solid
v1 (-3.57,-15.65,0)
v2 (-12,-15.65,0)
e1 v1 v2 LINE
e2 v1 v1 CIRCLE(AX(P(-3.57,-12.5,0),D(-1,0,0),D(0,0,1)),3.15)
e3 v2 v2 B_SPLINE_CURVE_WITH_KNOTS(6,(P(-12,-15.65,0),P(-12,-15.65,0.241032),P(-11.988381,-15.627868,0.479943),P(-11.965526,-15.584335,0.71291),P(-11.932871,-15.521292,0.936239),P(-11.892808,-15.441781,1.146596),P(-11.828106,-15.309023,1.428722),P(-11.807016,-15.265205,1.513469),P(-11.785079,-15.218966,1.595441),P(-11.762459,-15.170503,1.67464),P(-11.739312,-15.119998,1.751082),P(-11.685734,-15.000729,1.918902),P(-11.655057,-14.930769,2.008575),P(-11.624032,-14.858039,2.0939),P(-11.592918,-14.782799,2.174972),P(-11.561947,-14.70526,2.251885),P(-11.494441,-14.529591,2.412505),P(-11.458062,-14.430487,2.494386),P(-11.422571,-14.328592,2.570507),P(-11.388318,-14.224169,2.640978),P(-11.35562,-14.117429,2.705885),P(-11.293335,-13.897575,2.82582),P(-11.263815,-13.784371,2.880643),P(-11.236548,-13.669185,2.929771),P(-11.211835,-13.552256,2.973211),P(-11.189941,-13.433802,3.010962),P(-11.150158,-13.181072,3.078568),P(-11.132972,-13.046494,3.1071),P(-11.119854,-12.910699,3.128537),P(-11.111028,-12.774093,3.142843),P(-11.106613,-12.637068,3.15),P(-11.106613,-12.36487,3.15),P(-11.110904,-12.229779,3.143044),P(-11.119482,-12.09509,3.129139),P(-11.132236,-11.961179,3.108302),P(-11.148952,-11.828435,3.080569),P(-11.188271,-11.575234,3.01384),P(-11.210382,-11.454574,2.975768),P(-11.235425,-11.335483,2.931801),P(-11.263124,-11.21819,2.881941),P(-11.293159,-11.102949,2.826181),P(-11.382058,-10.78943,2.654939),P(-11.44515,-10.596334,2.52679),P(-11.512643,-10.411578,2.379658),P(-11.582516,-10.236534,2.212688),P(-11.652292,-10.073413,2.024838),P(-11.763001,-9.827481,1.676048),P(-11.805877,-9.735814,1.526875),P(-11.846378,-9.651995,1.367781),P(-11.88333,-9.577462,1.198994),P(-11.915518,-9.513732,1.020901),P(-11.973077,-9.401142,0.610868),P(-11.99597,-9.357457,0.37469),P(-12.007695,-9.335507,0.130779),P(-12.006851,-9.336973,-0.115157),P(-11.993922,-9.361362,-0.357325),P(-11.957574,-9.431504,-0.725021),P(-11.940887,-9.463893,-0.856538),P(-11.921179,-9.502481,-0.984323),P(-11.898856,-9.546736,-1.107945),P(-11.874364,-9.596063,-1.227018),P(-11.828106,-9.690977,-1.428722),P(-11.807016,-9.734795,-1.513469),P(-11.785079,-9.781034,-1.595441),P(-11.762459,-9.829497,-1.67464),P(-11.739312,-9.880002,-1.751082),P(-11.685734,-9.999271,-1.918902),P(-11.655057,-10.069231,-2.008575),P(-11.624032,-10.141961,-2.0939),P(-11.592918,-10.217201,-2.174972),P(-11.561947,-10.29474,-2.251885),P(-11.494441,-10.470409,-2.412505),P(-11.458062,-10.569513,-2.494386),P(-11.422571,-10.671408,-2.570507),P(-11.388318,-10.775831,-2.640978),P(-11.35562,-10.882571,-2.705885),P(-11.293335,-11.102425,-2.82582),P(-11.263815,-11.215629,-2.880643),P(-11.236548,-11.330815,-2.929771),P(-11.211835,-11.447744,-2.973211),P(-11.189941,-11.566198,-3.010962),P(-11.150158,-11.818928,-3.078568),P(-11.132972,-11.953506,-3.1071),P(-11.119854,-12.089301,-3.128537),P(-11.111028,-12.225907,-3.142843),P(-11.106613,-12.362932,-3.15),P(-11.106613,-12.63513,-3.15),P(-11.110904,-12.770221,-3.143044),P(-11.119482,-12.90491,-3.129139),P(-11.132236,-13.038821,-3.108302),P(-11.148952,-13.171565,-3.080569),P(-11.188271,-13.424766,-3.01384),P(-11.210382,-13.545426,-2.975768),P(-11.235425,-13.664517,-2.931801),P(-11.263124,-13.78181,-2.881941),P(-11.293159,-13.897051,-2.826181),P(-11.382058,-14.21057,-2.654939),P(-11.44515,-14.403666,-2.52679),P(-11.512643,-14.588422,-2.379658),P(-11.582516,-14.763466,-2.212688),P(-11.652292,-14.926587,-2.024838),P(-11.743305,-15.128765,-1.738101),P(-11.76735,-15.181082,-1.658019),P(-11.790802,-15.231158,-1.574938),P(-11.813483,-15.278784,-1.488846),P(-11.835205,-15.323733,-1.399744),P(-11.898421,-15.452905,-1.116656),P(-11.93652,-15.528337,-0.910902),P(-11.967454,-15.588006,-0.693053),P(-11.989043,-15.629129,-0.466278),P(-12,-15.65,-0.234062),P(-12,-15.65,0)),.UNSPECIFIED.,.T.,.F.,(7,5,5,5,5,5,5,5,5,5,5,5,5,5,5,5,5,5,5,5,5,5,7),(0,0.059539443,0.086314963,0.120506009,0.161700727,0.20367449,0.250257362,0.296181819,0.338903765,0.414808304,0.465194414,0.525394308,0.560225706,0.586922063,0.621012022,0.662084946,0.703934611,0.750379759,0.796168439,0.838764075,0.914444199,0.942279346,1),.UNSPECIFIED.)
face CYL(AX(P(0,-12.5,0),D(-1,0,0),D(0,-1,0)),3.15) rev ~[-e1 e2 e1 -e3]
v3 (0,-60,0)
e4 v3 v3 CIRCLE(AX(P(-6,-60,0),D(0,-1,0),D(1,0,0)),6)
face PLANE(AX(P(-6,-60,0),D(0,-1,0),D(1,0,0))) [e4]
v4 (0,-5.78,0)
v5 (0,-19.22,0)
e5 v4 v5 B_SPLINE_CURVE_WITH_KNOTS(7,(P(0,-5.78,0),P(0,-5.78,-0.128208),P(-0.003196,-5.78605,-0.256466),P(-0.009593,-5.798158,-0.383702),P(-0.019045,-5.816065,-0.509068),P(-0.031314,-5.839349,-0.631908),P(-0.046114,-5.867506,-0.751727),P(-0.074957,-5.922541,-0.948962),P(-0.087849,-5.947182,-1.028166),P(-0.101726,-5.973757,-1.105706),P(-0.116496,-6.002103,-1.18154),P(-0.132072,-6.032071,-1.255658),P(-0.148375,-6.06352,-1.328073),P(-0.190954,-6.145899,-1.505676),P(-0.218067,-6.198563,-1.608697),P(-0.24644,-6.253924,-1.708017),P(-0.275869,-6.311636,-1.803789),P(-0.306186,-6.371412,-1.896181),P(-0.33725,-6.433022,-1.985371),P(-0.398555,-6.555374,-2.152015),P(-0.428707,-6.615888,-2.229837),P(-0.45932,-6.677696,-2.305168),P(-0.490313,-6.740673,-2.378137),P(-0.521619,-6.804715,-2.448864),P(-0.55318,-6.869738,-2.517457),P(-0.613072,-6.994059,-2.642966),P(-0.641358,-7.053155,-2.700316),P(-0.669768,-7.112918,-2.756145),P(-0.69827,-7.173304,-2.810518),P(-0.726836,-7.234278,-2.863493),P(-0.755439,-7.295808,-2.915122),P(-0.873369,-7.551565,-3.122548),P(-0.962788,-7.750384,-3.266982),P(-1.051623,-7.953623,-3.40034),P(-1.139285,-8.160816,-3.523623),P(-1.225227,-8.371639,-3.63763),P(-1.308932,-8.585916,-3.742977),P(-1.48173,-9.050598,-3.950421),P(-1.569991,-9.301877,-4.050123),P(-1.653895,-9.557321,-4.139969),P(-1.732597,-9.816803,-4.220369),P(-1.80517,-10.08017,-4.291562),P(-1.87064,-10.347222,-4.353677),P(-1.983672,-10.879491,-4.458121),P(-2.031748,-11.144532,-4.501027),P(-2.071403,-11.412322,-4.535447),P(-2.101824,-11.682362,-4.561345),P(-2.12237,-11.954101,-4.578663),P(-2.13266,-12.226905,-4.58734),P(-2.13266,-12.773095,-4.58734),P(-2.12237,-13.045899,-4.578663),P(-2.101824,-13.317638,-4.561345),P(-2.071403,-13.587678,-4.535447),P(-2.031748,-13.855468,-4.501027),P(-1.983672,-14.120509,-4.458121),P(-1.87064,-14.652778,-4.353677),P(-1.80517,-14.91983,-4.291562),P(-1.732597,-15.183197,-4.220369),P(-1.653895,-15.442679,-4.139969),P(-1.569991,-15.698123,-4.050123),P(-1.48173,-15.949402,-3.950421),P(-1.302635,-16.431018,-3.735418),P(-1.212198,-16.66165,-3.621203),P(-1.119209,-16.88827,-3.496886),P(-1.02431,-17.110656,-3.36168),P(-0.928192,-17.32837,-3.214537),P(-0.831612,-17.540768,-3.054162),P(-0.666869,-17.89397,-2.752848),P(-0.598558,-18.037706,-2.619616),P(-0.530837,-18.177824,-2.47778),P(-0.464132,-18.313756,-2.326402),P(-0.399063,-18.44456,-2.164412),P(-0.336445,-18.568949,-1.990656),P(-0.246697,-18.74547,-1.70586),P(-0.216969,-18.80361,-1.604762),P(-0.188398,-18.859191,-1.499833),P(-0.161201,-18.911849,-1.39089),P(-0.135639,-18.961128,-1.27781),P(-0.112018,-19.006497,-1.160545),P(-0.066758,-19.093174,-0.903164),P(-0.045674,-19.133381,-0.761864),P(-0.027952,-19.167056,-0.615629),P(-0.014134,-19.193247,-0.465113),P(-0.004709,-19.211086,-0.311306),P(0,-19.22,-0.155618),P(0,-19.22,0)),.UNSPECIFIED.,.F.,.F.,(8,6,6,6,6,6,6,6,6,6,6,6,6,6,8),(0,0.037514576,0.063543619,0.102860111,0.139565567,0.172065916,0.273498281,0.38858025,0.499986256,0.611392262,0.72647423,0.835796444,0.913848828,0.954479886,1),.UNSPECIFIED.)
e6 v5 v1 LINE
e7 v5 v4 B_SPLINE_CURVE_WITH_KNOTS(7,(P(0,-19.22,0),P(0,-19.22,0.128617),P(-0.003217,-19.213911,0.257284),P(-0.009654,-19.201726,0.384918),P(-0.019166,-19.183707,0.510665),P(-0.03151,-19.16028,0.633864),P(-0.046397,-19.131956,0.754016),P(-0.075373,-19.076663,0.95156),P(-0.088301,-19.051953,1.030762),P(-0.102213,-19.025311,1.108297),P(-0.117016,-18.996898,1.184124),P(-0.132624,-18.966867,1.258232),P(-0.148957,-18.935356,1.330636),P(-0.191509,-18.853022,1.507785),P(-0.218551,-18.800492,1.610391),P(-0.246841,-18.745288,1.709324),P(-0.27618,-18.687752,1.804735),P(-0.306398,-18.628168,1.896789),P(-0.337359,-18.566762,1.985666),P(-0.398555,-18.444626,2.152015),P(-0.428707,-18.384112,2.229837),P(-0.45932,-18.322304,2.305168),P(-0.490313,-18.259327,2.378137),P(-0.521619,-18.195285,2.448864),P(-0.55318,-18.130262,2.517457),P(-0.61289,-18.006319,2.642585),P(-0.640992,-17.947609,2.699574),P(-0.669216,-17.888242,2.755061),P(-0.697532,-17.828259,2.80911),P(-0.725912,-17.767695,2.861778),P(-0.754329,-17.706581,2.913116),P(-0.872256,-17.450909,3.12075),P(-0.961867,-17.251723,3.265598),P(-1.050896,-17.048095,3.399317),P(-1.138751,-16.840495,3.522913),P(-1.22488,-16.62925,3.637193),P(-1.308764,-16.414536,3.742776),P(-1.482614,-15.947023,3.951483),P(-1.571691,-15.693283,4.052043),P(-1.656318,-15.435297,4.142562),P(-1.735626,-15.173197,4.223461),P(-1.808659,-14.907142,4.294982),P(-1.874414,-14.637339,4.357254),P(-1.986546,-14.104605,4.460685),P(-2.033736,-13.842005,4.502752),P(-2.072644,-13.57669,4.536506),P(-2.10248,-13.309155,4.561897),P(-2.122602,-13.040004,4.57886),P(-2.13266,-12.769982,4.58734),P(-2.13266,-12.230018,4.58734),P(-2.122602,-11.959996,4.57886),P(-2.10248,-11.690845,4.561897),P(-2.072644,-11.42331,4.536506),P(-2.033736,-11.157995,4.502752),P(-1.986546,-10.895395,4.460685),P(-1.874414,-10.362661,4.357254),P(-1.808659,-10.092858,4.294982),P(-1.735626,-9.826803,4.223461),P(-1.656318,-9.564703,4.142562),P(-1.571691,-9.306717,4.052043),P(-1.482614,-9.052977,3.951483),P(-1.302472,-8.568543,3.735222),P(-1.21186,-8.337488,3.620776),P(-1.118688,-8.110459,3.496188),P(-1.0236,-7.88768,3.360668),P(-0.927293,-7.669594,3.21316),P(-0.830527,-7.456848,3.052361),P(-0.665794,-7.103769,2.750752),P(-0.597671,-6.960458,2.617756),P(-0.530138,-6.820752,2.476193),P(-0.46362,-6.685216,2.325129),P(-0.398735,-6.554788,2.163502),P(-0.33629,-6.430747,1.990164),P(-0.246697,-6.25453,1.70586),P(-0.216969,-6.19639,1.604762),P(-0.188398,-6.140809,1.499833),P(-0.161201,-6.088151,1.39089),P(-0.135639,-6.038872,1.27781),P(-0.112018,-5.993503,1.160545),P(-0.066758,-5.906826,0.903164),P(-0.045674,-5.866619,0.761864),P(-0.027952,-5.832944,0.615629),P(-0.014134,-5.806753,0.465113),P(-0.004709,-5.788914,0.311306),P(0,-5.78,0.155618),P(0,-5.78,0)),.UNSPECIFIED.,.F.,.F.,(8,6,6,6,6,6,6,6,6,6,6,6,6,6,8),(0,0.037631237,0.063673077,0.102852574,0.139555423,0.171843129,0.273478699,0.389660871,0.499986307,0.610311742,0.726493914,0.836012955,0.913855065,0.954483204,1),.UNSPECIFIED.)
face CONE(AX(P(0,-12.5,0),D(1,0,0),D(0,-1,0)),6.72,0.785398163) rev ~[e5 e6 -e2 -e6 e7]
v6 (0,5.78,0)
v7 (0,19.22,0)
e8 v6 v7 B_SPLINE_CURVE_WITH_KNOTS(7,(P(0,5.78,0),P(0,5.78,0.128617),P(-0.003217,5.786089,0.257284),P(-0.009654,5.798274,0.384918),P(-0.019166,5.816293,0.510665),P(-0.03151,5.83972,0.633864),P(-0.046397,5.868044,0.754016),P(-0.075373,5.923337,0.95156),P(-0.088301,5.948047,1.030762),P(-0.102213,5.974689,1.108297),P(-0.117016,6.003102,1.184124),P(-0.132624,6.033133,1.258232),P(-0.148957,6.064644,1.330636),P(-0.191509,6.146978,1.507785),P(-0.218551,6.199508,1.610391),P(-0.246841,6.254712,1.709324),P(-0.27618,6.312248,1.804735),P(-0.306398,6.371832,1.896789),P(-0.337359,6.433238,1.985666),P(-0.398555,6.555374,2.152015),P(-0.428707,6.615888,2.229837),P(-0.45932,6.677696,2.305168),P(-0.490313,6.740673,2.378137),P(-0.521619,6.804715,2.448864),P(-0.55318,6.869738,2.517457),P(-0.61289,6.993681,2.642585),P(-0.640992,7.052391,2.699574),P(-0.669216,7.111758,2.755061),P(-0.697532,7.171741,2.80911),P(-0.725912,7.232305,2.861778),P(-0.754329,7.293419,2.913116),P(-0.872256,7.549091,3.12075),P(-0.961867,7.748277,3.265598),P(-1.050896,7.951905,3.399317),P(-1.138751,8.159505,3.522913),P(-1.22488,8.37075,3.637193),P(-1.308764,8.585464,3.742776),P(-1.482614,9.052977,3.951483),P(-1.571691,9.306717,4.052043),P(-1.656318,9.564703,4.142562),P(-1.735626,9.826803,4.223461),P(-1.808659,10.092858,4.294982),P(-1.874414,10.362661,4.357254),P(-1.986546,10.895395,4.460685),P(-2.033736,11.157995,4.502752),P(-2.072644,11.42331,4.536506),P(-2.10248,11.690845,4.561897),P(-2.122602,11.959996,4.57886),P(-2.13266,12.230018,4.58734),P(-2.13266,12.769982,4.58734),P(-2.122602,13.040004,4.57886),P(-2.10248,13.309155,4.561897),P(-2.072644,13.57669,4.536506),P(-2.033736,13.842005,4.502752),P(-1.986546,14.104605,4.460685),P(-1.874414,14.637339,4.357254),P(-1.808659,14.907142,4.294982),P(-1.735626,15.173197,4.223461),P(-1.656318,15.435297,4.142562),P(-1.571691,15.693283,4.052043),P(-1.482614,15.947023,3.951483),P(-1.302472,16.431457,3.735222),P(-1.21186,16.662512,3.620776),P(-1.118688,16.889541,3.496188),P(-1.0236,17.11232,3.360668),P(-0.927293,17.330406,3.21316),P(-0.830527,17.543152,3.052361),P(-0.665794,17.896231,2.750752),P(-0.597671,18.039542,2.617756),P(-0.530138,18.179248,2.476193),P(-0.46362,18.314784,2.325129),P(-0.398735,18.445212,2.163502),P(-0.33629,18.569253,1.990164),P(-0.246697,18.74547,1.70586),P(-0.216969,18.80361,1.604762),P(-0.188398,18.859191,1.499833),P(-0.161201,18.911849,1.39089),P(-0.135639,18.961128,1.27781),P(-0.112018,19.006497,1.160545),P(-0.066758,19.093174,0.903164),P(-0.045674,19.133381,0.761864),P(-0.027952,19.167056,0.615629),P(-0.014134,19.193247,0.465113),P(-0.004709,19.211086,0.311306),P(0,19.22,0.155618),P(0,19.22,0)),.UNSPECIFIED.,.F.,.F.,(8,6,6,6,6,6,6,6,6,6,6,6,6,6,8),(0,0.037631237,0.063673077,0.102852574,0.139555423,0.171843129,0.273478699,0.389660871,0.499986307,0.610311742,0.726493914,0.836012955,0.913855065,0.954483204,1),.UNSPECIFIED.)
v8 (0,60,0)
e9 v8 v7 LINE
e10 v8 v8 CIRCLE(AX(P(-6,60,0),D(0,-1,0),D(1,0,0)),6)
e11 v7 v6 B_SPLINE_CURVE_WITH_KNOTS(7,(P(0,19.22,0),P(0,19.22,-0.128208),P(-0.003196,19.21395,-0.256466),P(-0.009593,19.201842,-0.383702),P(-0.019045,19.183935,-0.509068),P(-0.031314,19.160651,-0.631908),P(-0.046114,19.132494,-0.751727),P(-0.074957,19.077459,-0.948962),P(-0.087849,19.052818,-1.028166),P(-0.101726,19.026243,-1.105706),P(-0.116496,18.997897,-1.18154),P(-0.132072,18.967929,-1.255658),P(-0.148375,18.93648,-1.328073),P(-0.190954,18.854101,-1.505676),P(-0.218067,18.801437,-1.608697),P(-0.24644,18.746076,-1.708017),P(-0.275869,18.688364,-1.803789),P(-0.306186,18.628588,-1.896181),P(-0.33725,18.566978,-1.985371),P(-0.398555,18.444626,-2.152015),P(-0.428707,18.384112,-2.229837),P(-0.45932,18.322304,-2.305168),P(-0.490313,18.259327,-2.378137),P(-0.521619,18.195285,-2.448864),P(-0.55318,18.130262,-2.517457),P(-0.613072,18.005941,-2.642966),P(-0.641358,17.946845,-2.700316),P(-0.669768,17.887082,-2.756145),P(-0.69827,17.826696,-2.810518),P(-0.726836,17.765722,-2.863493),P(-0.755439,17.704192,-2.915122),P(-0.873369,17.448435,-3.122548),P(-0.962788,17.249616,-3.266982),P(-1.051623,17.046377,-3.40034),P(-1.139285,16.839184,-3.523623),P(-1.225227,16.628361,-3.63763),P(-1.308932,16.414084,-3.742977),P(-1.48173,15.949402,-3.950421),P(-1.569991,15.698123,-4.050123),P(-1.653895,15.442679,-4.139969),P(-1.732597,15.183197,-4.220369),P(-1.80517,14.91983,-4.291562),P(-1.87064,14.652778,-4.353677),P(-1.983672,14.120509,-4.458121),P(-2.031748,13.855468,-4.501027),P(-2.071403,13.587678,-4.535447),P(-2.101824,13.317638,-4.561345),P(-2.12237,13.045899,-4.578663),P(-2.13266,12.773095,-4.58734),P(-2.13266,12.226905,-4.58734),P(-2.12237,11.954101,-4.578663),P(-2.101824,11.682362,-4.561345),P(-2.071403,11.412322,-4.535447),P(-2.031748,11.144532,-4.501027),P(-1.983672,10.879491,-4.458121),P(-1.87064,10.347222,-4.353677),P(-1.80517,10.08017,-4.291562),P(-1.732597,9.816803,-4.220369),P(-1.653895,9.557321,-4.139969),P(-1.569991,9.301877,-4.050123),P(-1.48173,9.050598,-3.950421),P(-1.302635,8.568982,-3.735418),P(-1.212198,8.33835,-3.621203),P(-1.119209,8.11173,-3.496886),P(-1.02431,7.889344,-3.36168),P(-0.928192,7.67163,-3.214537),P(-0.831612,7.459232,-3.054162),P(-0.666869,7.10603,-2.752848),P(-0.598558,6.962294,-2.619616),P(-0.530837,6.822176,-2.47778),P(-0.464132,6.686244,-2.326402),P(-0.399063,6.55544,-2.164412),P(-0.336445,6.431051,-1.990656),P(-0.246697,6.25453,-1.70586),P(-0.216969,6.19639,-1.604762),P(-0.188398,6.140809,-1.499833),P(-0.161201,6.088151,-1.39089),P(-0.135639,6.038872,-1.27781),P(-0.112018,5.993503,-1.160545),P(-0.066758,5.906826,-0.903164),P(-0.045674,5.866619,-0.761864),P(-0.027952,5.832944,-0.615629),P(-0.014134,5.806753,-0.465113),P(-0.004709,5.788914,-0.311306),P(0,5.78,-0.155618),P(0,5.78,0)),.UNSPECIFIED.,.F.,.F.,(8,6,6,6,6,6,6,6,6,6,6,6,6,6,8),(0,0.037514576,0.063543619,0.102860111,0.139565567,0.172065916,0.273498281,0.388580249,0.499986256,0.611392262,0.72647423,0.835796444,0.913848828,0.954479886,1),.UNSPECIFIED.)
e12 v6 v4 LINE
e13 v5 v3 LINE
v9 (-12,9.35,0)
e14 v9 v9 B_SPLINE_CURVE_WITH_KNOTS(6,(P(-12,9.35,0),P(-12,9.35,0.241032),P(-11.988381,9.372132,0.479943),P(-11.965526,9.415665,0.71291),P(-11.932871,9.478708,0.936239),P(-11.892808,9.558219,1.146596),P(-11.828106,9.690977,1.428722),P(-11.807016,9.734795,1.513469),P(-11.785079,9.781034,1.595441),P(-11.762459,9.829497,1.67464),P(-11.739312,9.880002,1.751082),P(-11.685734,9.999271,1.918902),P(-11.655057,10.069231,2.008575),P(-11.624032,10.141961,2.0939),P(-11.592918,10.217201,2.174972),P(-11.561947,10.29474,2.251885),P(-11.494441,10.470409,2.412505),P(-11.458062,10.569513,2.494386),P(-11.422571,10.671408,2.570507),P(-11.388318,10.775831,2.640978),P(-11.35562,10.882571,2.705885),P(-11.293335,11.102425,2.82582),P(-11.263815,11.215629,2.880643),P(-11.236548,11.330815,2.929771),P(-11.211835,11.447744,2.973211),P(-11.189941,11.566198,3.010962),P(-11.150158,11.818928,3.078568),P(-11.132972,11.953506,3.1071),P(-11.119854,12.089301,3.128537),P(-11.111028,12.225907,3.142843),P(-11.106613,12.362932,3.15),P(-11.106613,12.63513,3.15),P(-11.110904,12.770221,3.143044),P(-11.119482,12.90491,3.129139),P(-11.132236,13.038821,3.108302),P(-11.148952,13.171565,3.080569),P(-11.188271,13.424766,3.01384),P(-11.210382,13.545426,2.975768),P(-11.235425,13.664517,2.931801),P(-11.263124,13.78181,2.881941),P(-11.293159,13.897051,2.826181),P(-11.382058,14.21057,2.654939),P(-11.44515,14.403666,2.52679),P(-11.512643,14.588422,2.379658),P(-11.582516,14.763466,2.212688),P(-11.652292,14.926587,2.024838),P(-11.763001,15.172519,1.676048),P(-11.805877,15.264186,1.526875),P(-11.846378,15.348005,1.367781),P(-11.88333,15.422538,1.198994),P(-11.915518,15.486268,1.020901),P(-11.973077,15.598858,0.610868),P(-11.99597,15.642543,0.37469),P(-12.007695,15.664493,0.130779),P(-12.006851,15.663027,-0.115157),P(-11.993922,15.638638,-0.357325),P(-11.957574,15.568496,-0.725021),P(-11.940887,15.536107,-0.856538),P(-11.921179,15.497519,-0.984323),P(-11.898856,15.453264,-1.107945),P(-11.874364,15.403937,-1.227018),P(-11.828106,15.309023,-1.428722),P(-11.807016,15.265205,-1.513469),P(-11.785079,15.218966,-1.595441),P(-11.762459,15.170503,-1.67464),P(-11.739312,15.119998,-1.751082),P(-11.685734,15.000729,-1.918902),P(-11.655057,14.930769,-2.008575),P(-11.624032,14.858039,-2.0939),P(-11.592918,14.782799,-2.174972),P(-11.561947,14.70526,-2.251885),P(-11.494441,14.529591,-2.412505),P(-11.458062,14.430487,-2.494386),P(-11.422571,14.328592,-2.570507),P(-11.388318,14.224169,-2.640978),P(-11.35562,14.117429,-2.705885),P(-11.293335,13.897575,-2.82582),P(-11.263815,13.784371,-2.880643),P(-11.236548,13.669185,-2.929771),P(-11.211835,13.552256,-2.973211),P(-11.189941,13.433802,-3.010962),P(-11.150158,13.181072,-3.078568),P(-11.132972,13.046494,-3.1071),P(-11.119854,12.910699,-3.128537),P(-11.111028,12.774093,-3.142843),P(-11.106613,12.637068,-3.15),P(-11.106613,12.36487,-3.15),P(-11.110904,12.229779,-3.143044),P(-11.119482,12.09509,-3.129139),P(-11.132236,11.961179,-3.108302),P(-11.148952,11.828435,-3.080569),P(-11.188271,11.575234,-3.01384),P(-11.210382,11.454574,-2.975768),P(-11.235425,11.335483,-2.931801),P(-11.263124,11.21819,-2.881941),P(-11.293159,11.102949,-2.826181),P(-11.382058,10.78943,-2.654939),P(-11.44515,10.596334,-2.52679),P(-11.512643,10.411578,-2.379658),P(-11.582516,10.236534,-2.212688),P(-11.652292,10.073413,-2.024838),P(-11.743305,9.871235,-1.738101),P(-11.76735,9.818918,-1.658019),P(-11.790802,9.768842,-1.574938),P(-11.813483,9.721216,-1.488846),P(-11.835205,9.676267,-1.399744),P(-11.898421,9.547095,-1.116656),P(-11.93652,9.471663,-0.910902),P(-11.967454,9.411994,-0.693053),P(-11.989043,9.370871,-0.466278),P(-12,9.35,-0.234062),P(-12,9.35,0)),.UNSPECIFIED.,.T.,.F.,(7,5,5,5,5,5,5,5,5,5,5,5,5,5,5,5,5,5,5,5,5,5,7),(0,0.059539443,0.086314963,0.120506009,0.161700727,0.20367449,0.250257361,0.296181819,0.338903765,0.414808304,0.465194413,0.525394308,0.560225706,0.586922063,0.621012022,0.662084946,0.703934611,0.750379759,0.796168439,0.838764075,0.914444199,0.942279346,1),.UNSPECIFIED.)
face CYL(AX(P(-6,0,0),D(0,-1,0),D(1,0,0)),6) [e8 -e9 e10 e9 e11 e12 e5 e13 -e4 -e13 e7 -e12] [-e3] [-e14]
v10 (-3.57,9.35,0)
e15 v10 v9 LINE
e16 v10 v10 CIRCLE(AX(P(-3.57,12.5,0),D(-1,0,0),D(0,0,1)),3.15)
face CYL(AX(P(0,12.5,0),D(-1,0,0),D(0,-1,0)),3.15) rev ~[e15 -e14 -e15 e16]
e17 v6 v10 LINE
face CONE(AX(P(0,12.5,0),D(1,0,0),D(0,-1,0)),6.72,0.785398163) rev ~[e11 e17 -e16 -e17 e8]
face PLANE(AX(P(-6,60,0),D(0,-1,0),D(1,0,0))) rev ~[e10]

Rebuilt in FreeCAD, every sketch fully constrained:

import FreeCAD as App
import Part
import Sketcher

doc = App.newDocument("Part")
params = doc.addObject("Spreadsheet::Sheet", "Params")
for row, (alias, value) in enumerate([
    ("sketch1_diameter", "12 mm"),
    ("pad1_length", "120 mm"),
    ("sketch2_diameter", "6.3 mm"),
    ("hole_diameter", "6.3 mm"),
    ("hole_csink_diameter", "13.44 mm"),
], start=1):
    params.set(f"A{row}", alias)
    params.set(f"B{row}", "=" + value)
    params.setAlias(f"B{row}", alias)

body = doc.addObject("PartDesign::Body", "Body")

# Sketch on XZ plane
sketch1 = body.newObject("Sketcher::SketchObject", "Sketch")
sketch1.AttachmentSupport = (doc.getObject("XZ_Plane"), [""])
sketch1.MapMode = "FlatFace"
sketch1.addGeometry(Part.Circle(App.Vector(-6, 0, 0), App.Vector(0, 0, 1), 6), False)
sketch1.addConstraint([
    Sketcher.Constraint("PointOnObject", 0, 3, -1),
    Sketcher.Constraint("Diameter", 0, 12.0),
    Sketcher.Constraint("DistanceX", 0, 3, -1, 1, 6.0),
])
sketch1.setExpression("Constraints[1]", "Params.sketch1_diameter")
pad1 = body.newObject("PartDesign::Pad", "Pad")
pad1.Profile = sketch1
pad1.setExpression("Length", "Params.pad1_length")
pad1.Midplane = True

# Sketch on YZ plane
sketch2 = body.newObject("Sketcher::SketchObject", "Sketch001")
sketch2.AttachmentSupport = (doc.getObject("YZ_Plane"), [""])
sketch2.MapMode = "FlatFace"
sketch2.addGeometry([
    Part.Circle(App.Vector(12.5, 0, 0), App.Vector(0, 0, 1), 3.15),
    Part.Circle(App.Vector(-12.5, 0, 0), App.Vector(0, 0, 1), 3.15),
], False)
sketch2.addConstraint([
    Sketcher.Constraint("Equal", 0, 1),
    Sketcher.Constraint("Symmetric", 0, 3, 1, 3, -1, 1),
    Sketcher.Constraint("PointOnObject", 0, 3, -1),
    Sketcher.Constraint("Diameter", 0, 6.3),
    Sketcher.Constraint("DistanceX", 1, 3, 0, 3, 25.0),
])
sketch2.setExpression("Constraints[3]", "Params.sketch2_diameter")
doc.recompute()
hole = body.newObject("PartDesign::Hole", "Hole")
hole.Profile = sketch2
hole.ThreadType = "None"
hole.setExpression("Diameter", "Params.hole_diameter")
hole.DepthType = "ThroughAll"
hole.HoleCutType = "Countersink"
hole.setExpression("HoleCutDiameter", "Params.hole_csink_diameter")
hole.HoleCutCountersinkAngle = 90

doc.recompute()
